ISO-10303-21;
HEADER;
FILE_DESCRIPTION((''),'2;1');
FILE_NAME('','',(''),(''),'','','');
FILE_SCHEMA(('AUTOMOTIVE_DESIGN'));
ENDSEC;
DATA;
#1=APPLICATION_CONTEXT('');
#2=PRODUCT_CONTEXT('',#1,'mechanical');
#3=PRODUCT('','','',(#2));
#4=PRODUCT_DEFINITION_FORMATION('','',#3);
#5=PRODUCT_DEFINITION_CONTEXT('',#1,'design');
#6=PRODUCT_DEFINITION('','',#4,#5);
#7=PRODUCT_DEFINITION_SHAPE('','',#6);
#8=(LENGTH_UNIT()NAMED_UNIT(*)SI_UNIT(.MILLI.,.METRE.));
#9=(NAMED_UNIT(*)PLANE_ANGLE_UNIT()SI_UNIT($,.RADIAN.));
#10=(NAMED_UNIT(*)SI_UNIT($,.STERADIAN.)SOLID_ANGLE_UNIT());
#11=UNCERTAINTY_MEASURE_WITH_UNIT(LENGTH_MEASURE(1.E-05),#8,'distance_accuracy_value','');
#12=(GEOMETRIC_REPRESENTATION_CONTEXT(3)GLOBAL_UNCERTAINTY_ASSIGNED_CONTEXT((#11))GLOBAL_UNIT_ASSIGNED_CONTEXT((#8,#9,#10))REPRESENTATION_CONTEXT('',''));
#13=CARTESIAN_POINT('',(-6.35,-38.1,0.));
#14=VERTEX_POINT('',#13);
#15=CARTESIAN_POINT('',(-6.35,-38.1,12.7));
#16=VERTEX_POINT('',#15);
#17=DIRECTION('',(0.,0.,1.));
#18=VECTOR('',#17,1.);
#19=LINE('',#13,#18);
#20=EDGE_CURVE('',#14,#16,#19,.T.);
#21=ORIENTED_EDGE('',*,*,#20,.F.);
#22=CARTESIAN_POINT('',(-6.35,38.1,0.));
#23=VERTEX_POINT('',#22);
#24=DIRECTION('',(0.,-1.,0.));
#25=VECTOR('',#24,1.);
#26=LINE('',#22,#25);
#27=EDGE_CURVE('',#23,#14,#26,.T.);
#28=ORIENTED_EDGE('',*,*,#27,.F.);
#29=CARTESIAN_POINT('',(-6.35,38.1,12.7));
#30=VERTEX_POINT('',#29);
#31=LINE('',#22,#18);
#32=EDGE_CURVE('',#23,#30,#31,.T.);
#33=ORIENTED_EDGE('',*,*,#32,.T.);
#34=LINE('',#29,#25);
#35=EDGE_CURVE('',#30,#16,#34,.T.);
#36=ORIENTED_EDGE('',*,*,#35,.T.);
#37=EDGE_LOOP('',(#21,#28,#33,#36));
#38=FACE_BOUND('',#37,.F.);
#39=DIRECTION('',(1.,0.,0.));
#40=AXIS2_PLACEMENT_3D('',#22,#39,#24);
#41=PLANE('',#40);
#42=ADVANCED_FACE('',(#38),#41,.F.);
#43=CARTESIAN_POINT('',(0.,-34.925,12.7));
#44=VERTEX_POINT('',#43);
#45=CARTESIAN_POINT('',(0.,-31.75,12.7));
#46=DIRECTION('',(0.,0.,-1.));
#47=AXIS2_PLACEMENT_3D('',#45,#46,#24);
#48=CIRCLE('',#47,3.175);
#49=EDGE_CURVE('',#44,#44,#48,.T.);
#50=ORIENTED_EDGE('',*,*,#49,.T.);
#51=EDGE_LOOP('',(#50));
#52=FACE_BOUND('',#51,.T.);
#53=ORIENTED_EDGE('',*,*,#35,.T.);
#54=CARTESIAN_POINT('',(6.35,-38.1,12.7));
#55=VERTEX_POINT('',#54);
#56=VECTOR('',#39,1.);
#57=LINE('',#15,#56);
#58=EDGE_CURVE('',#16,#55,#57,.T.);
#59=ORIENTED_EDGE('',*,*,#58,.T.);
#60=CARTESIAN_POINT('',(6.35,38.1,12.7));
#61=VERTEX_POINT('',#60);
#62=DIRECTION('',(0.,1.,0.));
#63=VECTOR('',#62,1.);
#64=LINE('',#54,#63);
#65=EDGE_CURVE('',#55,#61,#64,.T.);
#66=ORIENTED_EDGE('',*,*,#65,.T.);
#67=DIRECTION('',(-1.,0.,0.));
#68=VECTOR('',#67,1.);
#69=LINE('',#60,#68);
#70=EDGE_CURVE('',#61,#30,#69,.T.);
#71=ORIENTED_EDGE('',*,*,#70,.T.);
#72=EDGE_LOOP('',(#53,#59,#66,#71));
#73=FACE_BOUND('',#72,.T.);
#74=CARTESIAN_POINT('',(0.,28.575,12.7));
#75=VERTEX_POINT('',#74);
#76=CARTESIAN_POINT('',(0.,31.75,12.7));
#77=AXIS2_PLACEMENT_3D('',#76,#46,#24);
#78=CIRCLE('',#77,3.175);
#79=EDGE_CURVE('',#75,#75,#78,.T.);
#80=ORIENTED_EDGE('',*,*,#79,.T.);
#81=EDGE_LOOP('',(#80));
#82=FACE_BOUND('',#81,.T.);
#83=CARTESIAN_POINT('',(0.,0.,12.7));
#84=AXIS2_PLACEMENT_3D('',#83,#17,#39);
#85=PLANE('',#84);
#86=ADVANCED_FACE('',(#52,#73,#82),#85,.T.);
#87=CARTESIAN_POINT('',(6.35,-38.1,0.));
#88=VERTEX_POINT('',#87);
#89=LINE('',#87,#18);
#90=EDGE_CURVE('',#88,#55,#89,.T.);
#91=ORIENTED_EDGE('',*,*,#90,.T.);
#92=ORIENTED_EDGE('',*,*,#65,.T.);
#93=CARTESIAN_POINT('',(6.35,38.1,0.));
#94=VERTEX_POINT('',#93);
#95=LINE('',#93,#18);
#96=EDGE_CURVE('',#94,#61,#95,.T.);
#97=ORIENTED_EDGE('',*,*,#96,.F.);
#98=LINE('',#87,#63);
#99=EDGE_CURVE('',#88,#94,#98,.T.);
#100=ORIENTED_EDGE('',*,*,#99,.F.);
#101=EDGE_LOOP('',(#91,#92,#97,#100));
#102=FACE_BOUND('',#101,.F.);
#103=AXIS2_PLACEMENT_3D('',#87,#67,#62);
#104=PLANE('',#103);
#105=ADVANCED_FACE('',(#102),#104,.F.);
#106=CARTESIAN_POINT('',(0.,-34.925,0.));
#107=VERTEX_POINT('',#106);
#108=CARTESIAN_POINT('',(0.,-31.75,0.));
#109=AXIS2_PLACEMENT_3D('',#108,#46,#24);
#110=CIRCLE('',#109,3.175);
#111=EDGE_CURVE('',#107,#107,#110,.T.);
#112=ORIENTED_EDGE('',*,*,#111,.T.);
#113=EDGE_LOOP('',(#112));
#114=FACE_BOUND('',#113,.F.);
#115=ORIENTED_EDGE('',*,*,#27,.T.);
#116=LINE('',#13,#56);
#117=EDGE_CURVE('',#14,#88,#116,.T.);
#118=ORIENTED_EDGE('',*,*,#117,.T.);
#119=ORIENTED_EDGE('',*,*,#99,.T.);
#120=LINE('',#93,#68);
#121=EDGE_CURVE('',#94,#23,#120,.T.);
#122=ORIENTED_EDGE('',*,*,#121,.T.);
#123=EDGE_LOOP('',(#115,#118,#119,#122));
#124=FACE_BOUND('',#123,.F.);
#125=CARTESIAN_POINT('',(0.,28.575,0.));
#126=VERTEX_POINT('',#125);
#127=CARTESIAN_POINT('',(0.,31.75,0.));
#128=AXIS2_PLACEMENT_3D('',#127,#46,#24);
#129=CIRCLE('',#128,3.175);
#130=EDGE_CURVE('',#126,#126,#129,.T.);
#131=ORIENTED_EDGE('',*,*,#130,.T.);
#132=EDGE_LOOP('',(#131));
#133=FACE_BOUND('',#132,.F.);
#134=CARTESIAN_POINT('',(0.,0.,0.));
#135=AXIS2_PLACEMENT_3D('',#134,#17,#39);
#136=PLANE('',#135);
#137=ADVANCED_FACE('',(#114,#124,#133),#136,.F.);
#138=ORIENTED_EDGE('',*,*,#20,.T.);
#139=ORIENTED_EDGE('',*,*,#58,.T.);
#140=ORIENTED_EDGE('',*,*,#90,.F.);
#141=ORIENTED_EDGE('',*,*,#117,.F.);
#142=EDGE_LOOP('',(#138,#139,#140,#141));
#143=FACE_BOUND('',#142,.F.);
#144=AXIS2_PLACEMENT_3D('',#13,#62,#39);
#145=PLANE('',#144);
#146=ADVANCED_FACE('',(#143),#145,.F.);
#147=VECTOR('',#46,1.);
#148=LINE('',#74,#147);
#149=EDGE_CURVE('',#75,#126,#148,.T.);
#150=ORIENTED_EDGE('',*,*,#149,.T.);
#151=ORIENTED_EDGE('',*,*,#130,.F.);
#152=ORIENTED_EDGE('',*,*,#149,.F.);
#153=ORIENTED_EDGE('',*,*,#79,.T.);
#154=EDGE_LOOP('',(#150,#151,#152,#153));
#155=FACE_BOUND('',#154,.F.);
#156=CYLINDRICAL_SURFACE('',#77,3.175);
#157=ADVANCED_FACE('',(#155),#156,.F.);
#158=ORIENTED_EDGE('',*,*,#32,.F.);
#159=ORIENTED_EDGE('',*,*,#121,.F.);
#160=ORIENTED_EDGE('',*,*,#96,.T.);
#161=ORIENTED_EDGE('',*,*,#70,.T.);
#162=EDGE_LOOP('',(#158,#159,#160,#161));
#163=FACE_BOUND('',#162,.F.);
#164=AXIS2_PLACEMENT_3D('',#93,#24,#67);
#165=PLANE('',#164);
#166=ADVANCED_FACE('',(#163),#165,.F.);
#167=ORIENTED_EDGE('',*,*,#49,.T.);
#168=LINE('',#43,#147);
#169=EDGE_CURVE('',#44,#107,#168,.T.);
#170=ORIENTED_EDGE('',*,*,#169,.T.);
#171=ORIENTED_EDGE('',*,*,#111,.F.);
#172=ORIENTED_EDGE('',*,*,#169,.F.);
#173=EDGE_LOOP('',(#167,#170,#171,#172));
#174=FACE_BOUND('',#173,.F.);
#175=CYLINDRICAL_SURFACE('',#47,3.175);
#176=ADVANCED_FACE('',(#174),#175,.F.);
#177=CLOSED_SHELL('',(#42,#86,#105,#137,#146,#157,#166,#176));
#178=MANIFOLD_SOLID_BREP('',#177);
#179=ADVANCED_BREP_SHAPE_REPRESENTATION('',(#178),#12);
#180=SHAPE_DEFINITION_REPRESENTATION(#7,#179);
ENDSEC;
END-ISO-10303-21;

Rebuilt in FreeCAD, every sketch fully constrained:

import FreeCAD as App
import Part
import Sketcher
Q = App.Units.Quantity


def add_polygon(sketch, points):
    """Adds a closed chain of lines whose ends are joined by coincident constraints."""
    first, n = sketch.GeometryCount, len(points)
    for a, b in zip(points, points[1:] + points[:1]):
        sketch.addGeometry(Part.LineSegment(App.Vector(*a, 0), App.Vector(*b, 0)), False)
    for i in range(n):
        sketch.addConstraint(Sketcher.Constraint("Coincident", first + i, 2, first + (i + 1) % n, 1))

doc = App.newDocument("Part")
body = doc.addObject("PartDesign::Body", "Body")

# Sketch on XY plane
sketch1 = body.newObject("Sketcher::SketchObject", "Sketch")
sketch1.AttachmentSupport = (doc.getObject("XY_Plane"), [""])
sketch1.MapMode = "FlatFace"
add_polygon(sketch1, [(-6.35, 38.1), (-6.35, -38.1), (6.35, -38.1), (6.35, 38.1)])  # lines 0-3
sketch1.addConstraint([
    Sketcher.Constraint("Vertical", 0),
    Sketcher.Constraint("Horizontal", 1),
    Sketcher.Constraint("Vertical", 2),
    Sketcher.Constraint("Horizontal", 3),
    Sketcher.Constraint("Symmetric", 0, 2, 2, 2, -1, 1),
    Sketcher.Constraint("DistanceY", 0, 2, 0, 1, Q("3 in")),
    Sketcher.Constraint("DistanceX", 1, 1, 1, 2, Q("0.5 in")),
])
pad1 = body.newObject("PartDesign::Pad", "Pad")
pad1.Profile = sketch1
pad1.Length = Q("0.5 in")

# Sketch on XY plane
sketch2 = body.newObject("Sketcher::SketchObject", "Sketch001")
sketch2.AttachmentSupport = (doc.getObject("XY_Plane"), [""])
sketch2.MapMode = "FlatFace"
sketch2.AttachmentOffset = App.Placement(App.Vector(0, 0, 0.5 * 25.4), App.Rotation())
sketch2.addGeometry([
    Part.Circle(App.Vector(0, 31.75, 0), App.Vector(0, 0, 1), 3.175),
    Part.Circle(App.Vector(0, -31.75, 0), App.Vector(0, 0, 1), 3.175),
], False)
sketch2.addConstraint([
    Sketcher.Constraint("Equal", 0, 1),
    Sketcher.Constraint("Symmetric", 0, 3, 1, 3, -1, 1),
    Sketcher.Constraint("PointOnObject", 0, 3, -2),
    Sketcher.Constraint("Diameter", 0, Q("0.25 in")),
    Sketcher.Constraint("DistanceY", 1, 3, 0, 3, Q("2.5 in")),
])
doc.recompute()
hole = body.newObject("PartDesign::Hole", "Hole")
hole.Profile = sketch2
hole.ThreadType = "None"
hole.Diameter = Q("0.25 in")
hole.DepthType = "ThroughAll"

doc.recompute()
